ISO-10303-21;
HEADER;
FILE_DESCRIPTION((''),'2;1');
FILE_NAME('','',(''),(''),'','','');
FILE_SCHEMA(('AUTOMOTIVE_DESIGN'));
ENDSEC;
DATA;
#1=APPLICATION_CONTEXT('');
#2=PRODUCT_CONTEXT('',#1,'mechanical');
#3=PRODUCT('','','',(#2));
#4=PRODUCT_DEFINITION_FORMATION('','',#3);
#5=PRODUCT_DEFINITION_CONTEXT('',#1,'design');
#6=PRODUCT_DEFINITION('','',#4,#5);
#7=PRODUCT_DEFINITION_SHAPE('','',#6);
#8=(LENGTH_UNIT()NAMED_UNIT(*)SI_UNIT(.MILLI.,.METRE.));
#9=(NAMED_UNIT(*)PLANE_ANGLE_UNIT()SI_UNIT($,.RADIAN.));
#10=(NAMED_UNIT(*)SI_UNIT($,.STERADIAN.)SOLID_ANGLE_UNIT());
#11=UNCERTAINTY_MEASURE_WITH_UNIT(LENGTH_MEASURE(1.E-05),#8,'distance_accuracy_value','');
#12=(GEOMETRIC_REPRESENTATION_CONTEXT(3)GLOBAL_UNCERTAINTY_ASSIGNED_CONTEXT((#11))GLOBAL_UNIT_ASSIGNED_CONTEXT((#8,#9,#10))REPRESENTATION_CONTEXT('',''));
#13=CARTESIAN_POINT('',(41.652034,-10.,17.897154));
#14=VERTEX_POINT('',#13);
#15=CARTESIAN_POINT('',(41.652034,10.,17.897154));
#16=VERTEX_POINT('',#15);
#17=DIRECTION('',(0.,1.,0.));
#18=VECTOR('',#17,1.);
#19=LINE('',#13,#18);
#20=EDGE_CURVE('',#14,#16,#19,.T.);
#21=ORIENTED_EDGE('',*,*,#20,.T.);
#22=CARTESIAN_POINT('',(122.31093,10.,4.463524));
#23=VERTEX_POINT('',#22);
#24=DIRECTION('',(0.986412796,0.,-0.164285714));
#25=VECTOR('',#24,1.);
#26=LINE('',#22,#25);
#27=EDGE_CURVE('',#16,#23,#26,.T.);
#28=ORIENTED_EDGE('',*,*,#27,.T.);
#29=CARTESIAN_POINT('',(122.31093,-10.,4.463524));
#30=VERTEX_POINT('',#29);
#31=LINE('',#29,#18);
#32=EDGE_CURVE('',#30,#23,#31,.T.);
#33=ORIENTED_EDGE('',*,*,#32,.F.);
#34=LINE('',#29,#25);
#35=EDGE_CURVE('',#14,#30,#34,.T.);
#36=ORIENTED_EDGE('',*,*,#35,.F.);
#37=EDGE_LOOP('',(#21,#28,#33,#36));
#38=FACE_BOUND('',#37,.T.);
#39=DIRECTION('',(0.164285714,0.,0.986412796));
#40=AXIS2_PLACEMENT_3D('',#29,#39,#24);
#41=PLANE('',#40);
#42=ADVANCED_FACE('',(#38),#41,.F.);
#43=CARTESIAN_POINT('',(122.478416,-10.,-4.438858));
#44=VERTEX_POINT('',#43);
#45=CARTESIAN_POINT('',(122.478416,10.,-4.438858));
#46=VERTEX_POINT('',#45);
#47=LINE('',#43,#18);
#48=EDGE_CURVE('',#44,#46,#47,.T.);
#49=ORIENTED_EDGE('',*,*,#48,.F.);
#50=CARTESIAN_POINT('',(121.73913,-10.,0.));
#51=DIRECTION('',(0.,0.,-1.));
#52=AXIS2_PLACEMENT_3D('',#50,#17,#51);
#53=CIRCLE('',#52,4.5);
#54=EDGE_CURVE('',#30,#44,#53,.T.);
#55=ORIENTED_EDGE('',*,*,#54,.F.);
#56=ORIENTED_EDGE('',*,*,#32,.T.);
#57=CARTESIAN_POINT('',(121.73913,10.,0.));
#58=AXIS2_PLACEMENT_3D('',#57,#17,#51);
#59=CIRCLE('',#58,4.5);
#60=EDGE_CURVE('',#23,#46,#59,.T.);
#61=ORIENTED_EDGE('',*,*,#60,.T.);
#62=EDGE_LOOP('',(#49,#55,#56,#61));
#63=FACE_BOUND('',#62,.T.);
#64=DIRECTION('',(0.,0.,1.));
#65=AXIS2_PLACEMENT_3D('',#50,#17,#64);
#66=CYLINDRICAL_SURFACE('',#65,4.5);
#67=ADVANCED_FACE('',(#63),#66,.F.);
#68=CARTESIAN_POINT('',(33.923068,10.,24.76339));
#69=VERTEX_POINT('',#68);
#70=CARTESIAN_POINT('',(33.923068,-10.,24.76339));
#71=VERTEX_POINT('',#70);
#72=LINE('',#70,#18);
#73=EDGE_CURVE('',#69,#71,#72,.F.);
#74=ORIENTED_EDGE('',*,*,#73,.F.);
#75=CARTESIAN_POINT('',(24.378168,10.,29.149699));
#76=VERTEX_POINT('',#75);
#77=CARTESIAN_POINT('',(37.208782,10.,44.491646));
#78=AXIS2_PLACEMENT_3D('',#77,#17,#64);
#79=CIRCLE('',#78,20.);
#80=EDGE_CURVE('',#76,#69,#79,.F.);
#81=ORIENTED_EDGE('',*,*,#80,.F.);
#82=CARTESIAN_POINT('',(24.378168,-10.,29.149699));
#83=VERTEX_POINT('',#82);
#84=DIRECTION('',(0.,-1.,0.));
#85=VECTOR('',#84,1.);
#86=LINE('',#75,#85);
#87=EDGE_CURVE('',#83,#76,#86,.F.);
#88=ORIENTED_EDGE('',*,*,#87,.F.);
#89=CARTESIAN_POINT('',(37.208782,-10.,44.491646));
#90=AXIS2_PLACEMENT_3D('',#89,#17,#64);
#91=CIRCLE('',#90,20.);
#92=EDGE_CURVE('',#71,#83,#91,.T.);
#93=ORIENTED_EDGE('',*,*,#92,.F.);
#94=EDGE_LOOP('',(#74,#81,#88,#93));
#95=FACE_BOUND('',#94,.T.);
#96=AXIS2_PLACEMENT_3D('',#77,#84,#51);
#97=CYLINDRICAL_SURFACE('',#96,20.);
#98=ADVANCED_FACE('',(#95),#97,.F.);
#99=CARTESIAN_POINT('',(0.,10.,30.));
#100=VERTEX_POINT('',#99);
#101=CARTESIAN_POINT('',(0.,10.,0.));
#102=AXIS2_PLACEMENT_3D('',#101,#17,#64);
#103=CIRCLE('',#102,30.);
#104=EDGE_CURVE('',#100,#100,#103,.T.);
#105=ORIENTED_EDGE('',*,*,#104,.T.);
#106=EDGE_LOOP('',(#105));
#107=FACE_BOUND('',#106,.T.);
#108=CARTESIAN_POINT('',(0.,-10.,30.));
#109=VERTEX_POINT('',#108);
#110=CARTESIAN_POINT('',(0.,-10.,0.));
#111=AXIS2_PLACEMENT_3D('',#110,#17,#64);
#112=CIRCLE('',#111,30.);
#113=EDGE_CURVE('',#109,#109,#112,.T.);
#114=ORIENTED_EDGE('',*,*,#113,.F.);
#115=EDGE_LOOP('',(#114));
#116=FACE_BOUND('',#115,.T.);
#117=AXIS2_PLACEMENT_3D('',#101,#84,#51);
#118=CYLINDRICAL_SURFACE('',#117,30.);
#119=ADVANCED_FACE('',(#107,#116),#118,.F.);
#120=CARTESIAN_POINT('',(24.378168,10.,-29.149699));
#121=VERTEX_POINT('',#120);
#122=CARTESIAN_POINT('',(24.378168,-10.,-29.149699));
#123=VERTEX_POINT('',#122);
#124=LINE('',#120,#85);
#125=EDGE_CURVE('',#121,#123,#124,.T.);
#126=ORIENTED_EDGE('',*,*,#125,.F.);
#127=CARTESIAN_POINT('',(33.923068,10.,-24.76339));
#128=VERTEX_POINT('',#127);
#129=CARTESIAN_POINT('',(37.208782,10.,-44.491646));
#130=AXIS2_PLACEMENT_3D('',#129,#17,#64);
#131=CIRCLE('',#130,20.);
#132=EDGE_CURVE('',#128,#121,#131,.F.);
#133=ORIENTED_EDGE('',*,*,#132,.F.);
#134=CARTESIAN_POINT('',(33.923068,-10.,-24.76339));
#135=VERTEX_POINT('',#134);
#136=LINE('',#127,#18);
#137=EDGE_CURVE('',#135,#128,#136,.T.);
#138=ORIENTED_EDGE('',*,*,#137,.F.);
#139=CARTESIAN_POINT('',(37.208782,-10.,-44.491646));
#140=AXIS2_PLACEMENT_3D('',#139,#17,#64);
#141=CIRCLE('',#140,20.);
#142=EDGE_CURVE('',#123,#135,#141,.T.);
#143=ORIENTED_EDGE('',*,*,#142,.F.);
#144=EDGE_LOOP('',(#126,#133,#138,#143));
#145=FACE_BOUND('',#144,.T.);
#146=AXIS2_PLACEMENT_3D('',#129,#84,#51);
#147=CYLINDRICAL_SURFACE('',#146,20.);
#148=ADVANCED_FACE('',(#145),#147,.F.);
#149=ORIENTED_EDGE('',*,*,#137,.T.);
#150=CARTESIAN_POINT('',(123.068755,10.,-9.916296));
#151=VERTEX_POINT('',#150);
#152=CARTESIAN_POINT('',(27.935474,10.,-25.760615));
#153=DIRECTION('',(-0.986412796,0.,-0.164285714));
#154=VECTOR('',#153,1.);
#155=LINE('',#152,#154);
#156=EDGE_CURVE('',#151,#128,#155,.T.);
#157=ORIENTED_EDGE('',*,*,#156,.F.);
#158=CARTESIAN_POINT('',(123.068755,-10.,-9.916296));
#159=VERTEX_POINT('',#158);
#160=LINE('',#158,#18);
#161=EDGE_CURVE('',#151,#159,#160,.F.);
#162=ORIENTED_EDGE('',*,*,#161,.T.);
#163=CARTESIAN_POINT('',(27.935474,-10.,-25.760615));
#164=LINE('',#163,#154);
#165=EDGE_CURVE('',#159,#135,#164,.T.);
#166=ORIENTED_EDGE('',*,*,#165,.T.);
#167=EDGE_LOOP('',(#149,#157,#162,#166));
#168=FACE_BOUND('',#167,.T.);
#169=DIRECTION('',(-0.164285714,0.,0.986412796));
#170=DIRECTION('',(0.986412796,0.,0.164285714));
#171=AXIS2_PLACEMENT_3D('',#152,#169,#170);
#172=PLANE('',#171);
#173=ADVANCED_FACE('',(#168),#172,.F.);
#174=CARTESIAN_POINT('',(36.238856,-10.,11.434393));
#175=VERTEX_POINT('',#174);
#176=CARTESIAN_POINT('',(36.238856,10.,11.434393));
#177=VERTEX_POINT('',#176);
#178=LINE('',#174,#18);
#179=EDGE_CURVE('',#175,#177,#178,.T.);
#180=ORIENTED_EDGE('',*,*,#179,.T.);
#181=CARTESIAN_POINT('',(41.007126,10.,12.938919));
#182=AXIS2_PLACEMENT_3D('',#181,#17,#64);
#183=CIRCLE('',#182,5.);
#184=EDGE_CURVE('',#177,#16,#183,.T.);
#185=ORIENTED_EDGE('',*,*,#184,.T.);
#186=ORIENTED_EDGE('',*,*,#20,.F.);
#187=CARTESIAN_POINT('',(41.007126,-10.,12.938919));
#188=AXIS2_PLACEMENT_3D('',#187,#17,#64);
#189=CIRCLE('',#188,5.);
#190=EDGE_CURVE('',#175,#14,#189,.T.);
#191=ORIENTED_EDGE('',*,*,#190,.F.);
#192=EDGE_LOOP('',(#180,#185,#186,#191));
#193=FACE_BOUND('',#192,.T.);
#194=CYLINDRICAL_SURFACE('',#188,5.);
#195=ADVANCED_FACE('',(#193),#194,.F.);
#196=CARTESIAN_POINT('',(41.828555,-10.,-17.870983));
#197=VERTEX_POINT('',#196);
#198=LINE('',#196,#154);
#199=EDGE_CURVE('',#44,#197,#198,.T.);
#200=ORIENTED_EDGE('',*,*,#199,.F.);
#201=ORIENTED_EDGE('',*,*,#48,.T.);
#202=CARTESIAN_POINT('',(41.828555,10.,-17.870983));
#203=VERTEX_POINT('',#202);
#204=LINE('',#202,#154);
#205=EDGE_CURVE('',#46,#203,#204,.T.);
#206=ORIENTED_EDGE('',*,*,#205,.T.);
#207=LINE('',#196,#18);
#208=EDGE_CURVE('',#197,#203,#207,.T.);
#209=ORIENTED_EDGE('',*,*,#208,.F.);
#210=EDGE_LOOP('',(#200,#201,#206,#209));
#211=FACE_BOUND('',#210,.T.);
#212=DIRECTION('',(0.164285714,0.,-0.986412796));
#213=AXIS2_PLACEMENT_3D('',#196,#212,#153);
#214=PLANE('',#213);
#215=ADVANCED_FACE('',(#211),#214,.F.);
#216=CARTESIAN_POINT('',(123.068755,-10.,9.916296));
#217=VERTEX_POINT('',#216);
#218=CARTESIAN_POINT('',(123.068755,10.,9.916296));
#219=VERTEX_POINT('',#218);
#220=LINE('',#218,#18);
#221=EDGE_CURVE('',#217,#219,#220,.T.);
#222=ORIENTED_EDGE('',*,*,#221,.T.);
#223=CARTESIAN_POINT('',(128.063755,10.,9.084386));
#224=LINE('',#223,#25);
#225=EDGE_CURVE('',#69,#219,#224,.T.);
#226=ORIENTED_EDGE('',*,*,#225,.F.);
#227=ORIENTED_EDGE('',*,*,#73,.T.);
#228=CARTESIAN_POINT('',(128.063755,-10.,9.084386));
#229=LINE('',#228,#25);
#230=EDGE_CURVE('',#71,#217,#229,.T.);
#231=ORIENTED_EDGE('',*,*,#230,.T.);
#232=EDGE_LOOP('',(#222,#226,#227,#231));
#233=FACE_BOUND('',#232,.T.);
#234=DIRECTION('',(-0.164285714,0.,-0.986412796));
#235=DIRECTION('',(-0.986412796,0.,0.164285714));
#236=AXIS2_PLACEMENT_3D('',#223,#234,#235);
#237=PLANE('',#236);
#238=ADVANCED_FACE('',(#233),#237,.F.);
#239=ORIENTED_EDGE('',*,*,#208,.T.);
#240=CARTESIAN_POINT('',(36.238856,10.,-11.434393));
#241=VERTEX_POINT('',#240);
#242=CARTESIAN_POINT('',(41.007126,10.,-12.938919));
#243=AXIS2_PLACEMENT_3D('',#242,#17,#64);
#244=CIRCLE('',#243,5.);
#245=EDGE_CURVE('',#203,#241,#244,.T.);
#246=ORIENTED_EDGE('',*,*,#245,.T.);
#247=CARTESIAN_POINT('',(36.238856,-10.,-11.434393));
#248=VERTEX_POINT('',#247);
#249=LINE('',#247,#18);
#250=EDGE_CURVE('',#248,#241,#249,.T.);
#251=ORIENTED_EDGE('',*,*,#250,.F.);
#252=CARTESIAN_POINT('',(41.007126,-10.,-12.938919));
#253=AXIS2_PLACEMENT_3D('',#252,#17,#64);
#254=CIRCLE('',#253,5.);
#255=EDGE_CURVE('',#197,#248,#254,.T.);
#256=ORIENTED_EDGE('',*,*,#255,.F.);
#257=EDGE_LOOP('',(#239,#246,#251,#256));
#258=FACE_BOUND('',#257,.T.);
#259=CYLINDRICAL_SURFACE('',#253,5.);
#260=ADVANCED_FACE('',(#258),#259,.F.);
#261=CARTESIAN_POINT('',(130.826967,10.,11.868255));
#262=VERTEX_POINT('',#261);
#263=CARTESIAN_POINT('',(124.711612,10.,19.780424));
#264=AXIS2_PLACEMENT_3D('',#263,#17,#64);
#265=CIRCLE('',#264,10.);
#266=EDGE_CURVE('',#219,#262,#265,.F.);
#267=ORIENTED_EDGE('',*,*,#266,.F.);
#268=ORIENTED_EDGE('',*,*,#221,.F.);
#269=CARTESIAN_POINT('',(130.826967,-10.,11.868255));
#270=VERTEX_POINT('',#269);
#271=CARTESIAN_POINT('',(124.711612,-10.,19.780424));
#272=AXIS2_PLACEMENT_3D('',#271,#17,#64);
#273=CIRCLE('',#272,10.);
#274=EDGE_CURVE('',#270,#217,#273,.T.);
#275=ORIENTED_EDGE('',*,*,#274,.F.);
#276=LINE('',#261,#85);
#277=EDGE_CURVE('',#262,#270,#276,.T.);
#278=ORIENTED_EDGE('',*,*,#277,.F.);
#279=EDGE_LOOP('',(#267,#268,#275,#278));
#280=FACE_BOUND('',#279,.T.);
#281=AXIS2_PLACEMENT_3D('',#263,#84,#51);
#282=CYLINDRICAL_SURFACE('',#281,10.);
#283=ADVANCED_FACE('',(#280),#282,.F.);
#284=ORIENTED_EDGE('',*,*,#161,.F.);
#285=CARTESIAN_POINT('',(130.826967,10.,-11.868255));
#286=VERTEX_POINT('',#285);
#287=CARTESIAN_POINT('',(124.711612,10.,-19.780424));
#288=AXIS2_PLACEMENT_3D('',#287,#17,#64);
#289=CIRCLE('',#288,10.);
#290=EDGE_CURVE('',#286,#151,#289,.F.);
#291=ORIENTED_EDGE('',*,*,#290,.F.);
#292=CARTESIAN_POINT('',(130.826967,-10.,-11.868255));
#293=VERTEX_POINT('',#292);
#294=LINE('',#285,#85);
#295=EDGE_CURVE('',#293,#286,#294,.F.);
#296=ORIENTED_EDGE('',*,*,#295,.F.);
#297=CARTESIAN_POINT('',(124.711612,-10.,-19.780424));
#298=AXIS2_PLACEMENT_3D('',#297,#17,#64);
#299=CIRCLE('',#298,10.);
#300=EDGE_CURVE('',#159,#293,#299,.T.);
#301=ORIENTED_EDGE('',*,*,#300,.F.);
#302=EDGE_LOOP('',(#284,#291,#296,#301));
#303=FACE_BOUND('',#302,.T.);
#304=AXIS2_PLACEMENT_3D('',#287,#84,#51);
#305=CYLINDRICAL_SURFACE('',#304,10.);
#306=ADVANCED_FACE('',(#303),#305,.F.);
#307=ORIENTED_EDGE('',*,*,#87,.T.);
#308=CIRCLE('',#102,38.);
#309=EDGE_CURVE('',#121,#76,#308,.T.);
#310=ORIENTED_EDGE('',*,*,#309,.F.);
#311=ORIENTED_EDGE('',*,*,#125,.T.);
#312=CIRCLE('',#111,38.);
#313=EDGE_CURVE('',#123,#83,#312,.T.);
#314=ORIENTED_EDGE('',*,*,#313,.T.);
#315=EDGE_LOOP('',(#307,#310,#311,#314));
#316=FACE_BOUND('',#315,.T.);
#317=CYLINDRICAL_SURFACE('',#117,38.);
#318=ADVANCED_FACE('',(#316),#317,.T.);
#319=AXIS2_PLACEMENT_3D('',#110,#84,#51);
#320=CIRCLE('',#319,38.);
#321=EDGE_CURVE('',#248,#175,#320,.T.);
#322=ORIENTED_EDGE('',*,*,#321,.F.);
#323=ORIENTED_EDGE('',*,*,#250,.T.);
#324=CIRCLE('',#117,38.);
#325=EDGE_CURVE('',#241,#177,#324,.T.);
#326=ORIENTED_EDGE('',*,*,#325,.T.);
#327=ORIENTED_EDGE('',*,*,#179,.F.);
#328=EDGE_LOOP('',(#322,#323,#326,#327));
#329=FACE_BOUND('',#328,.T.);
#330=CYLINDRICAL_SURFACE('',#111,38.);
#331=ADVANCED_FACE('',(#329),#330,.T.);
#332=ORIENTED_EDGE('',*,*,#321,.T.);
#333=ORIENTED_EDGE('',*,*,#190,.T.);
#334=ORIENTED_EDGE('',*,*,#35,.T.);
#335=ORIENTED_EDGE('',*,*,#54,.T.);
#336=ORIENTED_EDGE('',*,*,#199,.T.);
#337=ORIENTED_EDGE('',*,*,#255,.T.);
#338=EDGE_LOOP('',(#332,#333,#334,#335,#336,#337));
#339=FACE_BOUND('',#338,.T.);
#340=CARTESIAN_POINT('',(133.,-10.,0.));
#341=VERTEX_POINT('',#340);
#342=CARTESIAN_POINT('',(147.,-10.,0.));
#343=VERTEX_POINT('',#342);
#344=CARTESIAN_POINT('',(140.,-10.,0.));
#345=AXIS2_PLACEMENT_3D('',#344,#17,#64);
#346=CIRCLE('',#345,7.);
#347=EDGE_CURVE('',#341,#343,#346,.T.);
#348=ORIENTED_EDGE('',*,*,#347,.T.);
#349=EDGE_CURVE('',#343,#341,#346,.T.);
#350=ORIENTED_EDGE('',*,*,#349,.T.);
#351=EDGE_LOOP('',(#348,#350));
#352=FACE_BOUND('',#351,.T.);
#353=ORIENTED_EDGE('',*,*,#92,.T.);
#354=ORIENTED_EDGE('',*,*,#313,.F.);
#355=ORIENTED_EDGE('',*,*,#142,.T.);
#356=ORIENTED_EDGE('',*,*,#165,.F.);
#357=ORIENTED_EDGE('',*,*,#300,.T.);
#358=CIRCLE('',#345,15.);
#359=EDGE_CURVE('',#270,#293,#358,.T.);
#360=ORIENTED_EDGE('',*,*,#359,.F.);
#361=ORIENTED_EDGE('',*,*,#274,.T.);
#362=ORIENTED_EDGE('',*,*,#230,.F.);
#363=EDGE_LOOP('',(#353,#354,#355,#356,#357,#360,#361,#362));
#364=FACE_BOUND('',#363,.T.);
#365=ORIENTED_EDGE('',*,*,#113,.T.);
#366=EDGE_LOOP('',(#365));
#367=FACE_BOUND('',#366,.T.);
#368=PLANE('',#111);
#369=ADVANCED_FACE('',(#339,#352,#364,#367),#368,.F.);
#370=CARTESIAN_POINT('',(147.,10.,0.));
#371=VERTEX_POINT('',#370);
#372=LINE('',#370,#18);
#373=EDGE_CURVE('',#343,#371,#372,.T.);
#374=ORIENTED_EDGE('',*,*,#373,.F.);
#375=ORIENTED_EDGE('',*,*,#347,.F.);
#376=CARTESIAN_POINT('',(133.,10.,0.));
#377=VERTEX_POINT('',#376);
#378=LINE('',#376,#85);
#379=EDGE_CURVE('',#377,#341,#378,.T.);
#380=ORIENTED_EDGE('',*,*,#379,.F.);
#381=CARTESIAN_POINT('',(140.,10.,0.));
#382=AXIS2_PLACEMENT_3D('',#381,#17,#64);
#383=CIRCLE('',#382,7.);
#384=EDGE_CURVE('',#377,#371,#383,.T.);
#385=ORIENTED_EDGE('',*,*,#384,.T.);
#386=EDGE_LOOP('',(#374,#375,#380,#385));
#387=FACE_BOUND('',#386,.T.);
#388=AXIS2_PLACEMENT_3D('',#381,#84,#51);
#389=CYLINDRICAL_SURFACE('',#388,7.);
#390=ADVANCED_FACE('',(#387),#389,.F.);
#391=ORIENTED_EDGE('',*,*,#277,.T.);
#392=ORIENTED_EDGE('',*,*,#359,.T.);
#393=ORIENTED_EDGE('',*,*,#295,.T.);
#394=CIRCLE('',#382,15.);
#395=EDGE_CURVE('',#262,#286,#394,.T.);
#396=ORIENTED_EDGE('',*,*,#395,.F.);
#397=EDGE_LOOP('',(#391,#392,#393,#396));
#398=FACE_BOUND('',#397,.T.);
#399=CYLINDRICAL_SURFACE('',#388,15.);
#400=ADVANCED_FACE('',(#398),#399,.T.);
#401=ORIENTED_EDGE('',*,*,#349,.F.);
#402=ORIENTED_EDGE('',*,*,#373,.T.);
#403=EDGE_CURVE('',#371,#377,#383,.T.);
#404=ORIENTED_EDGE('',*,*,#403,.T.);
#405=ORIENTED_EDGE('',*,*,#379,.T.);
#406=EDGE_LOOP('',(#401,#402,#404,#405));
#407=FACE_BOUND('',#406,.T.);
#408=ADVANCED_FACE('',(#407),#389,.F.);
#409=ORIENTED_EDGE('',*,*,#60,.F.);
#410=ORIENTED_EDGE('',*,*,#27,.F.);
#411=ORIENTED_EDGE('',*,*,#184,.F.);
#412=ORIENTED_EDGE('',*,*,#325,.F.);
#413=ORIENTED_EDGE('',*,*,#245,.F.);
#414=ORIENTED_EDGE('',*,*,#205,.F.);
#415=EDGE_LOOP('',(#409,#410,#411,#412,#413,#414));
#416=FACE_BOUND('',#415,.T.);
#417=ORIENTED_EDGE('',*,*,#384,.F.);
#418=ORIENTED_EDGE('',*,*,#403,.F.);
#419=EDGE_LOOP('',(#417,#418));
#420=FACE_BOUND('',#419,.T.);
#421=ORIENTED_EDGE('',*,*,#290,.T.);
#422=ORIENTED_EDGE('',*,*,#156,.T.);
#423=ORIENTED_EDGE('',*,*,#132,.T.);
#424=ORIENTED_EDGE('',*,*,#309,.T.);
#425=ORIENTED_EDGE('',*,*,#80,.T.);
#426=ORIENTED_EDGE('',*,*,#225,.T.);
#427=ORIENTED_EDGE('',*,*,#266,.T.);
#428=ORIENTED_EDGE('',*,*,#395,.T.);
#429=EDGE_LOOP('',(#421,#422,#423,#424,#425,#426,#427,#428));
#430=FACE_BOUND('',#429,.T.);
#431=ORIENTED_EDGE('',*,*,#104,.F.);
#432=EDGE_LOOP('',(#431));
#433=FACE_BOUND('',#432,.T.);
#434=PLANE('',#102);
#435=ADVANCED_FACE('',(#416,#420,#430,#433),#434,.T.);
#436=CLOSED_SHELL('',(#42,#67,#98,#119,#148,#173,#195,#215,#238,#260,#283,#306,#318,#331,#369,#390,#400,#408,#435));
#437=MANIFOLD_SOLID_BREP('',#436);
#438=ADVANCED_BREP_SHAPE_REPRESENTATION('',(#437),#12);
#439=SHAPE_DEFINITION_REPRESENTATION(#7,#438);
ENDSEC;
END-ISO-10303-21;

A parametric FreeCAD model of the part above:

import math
import FreeCAD as App
import Part
import Sketcher
from FreeCAD import Vector


def edges_at(feature, points):
    """Names of the edges that pass closest to the given points."""
    edges = feature.Shape.Edges
    near = lambda p: min(range(len(edges)), key=lambda i: edges[i].distToShape(Part.Vertex(*p))[0])
    return sorted({f"Edge{near(p) + 1}" for p in points})

doc = App.newDocument("Part")
body = doc.addObject("PartDesign::Body", "Body")

# Sketch on XZ plane
sketch1 = doc.addObject("Sketcher::SketchObject", "Sketch")
body.addObject(sketch1)
sketch1.AttachmentSupport = (doc.XZ_Plane, [""])
sketch1.MapMode = "FlatFace"
sketch1.addGeometry([
    Part.LineSegment(Vector(128, -9, 0), Vector(28, -26, 0)),  # 0
    Part.ArcOfCircle(Part.Circle(Vector(0, 0, 0), Vector(0, 0, 1), 38), math.radians(43), math.radians(317)),  # 1
    Part.LineSegment(Vector(28, 26, 0), Vector(128, 9, 0)),  # 2
    Part.ArcOfCircle(Part.Circle(Vector(140, 0, 0), Vector(0, 0, 1), 15), math.radians(-143), math.radians(143)),  # 3
    Part.Circle(Vector(140, 0, 0), Vector(0, 0, 1), 7),  # 4
    Part.Circle(Vector(0, 0, 0), Vector(0, 0, 1), 30),  # 5
], False)
sketch1.addConstraint([
    Sketcher.Constraint("Coincident", 0, 2, 1, 2),
    Sketcher.Constraint("Coincident", 1, 1, 2, 1),
    Sketcher.Constraint("Coincident", 2, 2, 3, 2),
    Sketcher.Constraint("Coincident", 3, 1, 0, 1),
    Sketcher.Constraint("Coincident", 1, 3, -1, 1),
    Sketcher.Constraint("Coincident", 5, 3, -1, 1),
    Sketcher.Constraint("Coincident", 4, 3, 3, 3),
    Sketcher.Constraint("Symmetric", 2, 2, 3, 1, -1),
    Sketcher.Constraint("Vertical", 0, 2, 1, 1),
    Sketcher.Constraint("Diameter", 4, 14.0),
    Sketcher.Constraint("Diameter", 5, 60.0),
    Sketcher.Constraint("Radius", 1, 38.0),
    Sketcher.Constraint("Radius", 3, 15.0),
    Sketcher.Constraint("DistanceX", -1, 1, 3, 3, 140.0),
    Sketcher.Constraint("DistanceY", 0, 2, 2, 2, 34.845001),
    Sketcher.Constraint("DistanceY", 0, 2, 1, 1, 51.521231),
])
pad1 = doc.addObject("PartDesign::Pad", "Pad")
body.addObject(pad1)
pad1.Profile = sketch1
pad1.Length = 20
pad1.Midplane = True
doc.recompute()

fillet = doc.addObject("PartDesign::Fillet", "Fillet")
body.addObject(fillet)
fillet.Base = (pad1, edges_at(pad1, [(128.064, 0, -9.084), (128.064, 0, 9.084)]))
fillet.Radius = 10
doc.recompute()

fillet2 = doc.addObject("PartDesign::Fillet", "Fillet001")
body.addObject(fillet2)
fillet2.Base = (fillet, edges_at(fillet, [(27.935, 0, -25.761), (27.935, 0, 25.761)]))
fillet2.Radius = 20

# Sketch on XZ plane
sketch2 = doc.addObject("Sketcher::SketchObject", "Sketch001")
body.addObject(sketch2)
sketch2.AttachmentSupport = (doc.XZ_Plane, [""])
sketch2.MapMode = "FlatFace"
sketch2.AttachmentOffset = App.Placement(Vector(0, 0, -10), App.Rotation())
sketch2.addGeometry([
    Part.LineSegment(Vector(122.5, -4.4, 0), Vector(41.8, -17.9, 0)),  # 0
    Part.ArcOfCircle(Part.Circle(Vector(41, -12.9, 0), Vector(0, 0, 1), 5), math.radians(162), math.radians(279)),  # 1
    Part.ArcOfCircle(Part.Circle(Vector(0, 0, 0), Vector(0, 0, 1), 38), math.radians(-18), math.radians(18)),  # 2
    Part.ArcOfCircle(Part.Circle(Vector(41, 12.9, 0), Vector(0, 0, 1), 5), math.radians(83), math.radians(198)),  # 3
    Part.LineSegment(Vector(41.7, 17.9, 0), Vector(122.3, 4.5, 0)),  # 4
    Part.ArcOfCircle(Part.Circle(Vector(121.7, 0, 0), Vector(0, 0, 1), 4.5), math.radians(-81), math.radians(83)),  # 5
], False)
sketch2.addConstraint([
    Sketcher.Constraint("Tangent", 0, 2, 1, 2),
    Sketcher.Constraint("Tangent", 1, 1, 2, 1),
    Sketcher.Constraint("Tangent", 2, 2, 3, 2),
    Sketcher.Constraint("Coincident", 3, 1, 4, 1),
    Sketcher.Constraint("Coincident", 4, 2, 5, 2),
    Sketcher.Constraint("Tangent", 5, 1, 0, 1),
    Sketcher.Constraint("Coincident", 2, 3, -1, 1),
    Sketcher.Constraint("Equal", 1, 3),
    Sketcher.Constraint("PointOnObject", 5, 3, -1),
    Sketcher.Constraint("Vertical", 1, 3, 3, 3),
    Sketcher.Constraint("Radius", 1, 5.0),
    Sketcher.Constraint("Radius", 2, 38.0),
    Sketcher.Constraint("Radius", 5, 4.5),
    Sketcher.Constraint("DistanceY", 0, 2, 3, 3, 30.809901),
    Sketcher.Constraint("DistanceX", 1, 1, 0, 2, 5.589699),
    Sketcher.Constraint("DistanceX", 5, 3, 4, 2, 0.5718),
    Sketcher.Constraint("Distance", 4, 81.769921),
])
pocket1 = doc.addObject("PartDesign::Pocket", "Pocket")
body.addObject(pocket1)
pocket1.Profile = sketch2
pocket1.Type = "ThroughAll"
pocket1.Reversed = True

doc.recompute()
